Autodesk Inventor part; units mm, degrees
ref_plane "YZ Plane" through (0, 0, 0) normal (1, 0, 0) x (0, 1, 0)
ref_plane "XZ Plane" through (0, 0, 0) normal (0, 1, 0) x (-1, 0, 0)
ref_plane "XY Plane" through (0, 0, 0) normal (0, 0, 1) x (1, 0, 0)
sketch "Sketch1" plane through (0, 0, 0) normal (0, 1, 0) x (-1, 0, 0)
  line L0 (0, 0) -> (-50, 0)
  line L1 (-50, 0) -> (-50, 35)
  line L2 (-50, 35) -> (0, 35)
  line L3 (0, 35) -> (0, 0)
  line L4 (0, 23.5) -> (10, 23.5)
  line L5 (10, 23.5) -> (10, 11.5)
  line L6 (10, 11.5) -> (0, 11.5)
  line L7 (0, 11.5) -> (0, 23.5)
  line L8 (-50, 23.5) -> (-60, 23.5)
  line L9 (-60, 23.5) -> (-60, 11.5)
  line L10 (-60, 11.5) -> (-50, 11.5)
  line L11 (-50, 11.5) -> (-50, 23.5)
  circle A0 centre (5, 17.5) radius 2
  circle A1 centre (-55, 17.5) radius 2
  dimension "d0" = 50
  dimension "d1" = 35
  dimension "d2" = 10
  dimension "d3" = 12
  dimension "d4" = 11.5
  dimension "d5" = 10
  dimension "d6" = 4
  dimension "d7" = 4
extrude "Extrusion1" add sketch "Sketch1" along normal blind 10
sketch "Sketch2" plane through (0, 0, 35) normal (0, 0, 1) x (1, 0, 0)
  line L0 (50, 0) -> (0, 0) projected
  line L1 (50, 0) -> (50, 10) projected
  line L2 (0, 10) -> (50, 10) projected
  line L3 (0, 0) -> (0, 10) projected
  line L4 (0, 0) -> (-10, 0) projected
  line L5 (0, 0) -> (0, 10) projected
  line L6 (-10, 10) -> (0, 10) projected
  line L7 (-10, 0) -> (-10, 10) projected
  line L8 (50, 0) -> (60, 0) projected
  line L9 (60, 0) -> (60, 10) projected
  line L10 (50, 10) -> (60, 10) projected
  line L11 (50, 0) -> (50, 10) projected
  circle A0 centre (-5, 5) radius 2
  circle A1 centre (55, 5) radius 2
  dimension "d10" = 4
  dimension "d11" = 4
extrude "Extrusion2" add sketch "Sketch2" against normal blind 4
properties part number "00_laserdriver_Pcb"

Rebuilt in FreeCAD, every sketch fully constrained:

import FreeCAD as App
import Part
import Sketcher

doc = App.newDocument("Part")
params = doc.addObject("Spreadsheet::Sheet", "Params")
for row, (alias, value) in enumerate([
    ("sketch1_diameter", "4 mm"),
    ("sketch1_width", "50 mm"),
    ("sketch1_width2", "10 mm"),
    ("sketch1_height", "12 mm"),
    ("sketch1_height2", "11.5 mm"),
    ("pad1_length", "10 mm"),
    ("sketch2_diameter", "4 mm"),
    ("sketch2_width", "70 mm"),
    ("sketch2_height", "10 mm"),
    ("pad2_length", "4 mm"),
], start=1):
    params.set(f"A{row}", alias)
    params.set(f"B{row}", "=" + value)
    params.setAlias(f"B{row}", alias)

body = doc.addObject("PartDesign::Body", "Body")

# Sketch on XZ plane
sketch1 = doc.addObject("Sketcher::SketchObject", "Sketch")
body.addObject(sketch1)
sketch1.AttachmentSupport = (doc.XZ_Plane, [""])
sketch1.MapMode = "FlatFace"
sketch1.addGeometry(Part.LineSegment(App.Vector(50, 0, 0), App.Vector(0, 0, 0)), False)
sketch1.addGeometry(Part.LineSegment(App.Vector(0, 0, 0), App.Vector(0, 11.5, 0)), False)
sketch1.addGeometry(Part.LineSegment(App.Vector(0, 11.5, 0), App.Vector(-10, 11.5, 0)), False)
sketch1.addGeometry(Part.LineSegment(App.Vector(-10, 11.5, 0), App.Vector(-10, 23.5, 0)), False)
sketch1.addGeometry(Part.LineSegment(App.Vector(-10, 23.5, 0), App.Vector(0, 23.5, 0)), False)
sketch1.addGeometry(Part.LineSegment(App.Vector(0, 23.5, 0), App.Vector(0, 35, 0)), False)
sketch1.addGeometry(Part.LineSegment(App.Vector(0, 35, 0), App.Vector(50, 35, 0)), False)
sketch1.addGeometry(Part.LineSegment(App.Vector(50, 35, 0), App.Vector(50, 23.5, 0)), False)
sketch1.addGeometry(Part.LineSegment(App.Vector(50, 23.5, 0), App.Vector(60, 23.5, 0)), False)
sketch1.addGeometry(Part.LineSegment(App.Vector(60, 23.5, 0), App.Vector(60, 11.5, 0)), False)
sketch1.addGeometry(Part.LineSegment(App.Vector(60, 11.5, 0), App.Vector(50, 11.5, 0)), False)
sketch1.addGeometry(Part.LineSegment(App.Vector(50, 11.5, 0), App.Vector(50, 0, 0)), False)
sketch1.addGeometry(Part.Circle(App.Vector(55, 17.5, 0), App.Vector(0, 0, 1), 2), False)
sketch1.addGeometry(Part.Circle(App.Vector(-5, 17.5, 0), App.Vector(0, 0, 1), 2), False)
sketch1.addConstraint(Sketcher.Constraint("Coincident", 0, 2, 1, 1))
sketch1.addConstraint(Sketcher.Constraint("Coincident", 1, 2, 2, 1))
sketch1.addConstraint(Sketcher.Constraint("Coincident", 2, 2, 3, 1))
sketch1.addConstraint(Sketcher.Constraint("Coincident", 3, 2, 4, 1))
sketch1.addConstraint(Sketcher.Constraint("Coincident", 4, 2, 5, 1))
sketch1.addConstraint(Sketcher.Constraint("Coincident", 5, 2, 6, 1))
sketch1.addConstraint(Sketcher.Constraint("Coincident", 6, 2, 7, 1))
sketch1.addConstraint(Sketcher.Constraint("Coincident", 7, 2, 8, 1))
sketch1.addConstraint(Sketcher.Constraint("Coincident", 8, 2, 9, 1))
sketch1.addConstraint(Sketcher.Constraint("Coincident", 9, 2, 10, 1))
sketch1.addConstraint(Sketcher.Constraint("Coincident", 10, 2, 11, 1))
sketch1.addConstraint(Sketcher.Constraint("Coincident", 11, 2, 0, 1))
sketch1.addConstraint(Sketcher.Constraint("Horizontal", 0))
sketch1.addConstraint(Sketcher.Constraint("Vertical", 1))
sketch1.addConstraint(Sketcher.Constraint("Horizontal", 2))
sketch1.addConstraint(Sketcher.Constraint("Vertical", 3))
sketch1.addConstraint(Sketcher.Constraint("Horizontal", 4))
sketch1.addConstraint(Sketcher.Constraint("Vertical", 5))
sketch1.addConstraint(Sketcher.Constraint("Horizontal", 6))
sketch1.addConstraint(Sketcher.Constraint("Vertical", 7))
sketch1.addConstraint(Sketcher.Constraint("Horizontal", 8))
sketch1.addConstraint(Sketcher.Constraint("Vertical", 9))
sketch1.addConstraint(Sketcher.Constraint("Horizontal", 10))
sketch1.addConstraint(Sketcher.Constraint("Vertical", 11))
sketch1.addConstraint(Sketcher.Constraint("Coincident", 0, 2, -1, 1))
sketch1.addConstraint(Sketcher.Constraint("Equal", 12, 13))
sketch1.addConstraint(Sketcher.Constraint("PointOnObject", 4, 2, -2))
sketch1.addConstraint(Sketcher.Constraint("Horizontal", 12, 3, 13, 3))
sketch1.addConstraint(Sketcher.Constraint("Horizontal", 4, 2, 7, 2))
sketch1.addConstraint(Sketcher.Constraint("Horizontal", 2, 2, 9, 2))
sketch1.addConstraint(Sketcher.Constraint("Vertical", 7, 2, 10, 2))
sketch1.addConstraint(Sketcher.Constraint("Equal", 4, 8))
sketch1.addConstraint(Sketcher.Constraint("Equal", 1, 5))
sketch1.addConstraint(Sketcher.Constraint("Diameter", 12, 4.0))
sketch1.addConstraint(Sketcher.Constraint("DistanceX", 0, 2, 0, 1, 50.0))
sketch1.addConstraint(Sketcher.Constraint("DistanceX", 2, 2, 2, 1, 10.0))
sketch1.addConstraint(Sketcher.Constraint("DistanceY", 3, 1, 3, 2, 12.0))
sketch1.addConstraint(Sketcher.Constraint("DistanceY", 1, 1, 1, 2, 11.5))
sketch1.addConstraint(Sketcher.Constraint("DistanceX", -1, 1, 12, 3, 55.0))
sketch1.addConstraint(Sketcher.Constraint("DistanceX", 13, 3, -1, 1, 5.0))
sketch1.addConstraint(Sketcher.Constraint("DistanceY", 1, 2, 13, 3, 6.0))
sketch1.setExpression("Constraints[33]", "Params.sketch1_diameter")
sketch1.setExpression("Constraints[34]", "Params.sketch1_width")
sketch1.setExpression("Constraints[35]", "Params.sketch1_width2")
sketch1.setExpression("Constraints[36]", "Params.sketch1_height")
sketch1.setExpression("Constraints[37]", "Params.sketch1_height2")
pad1 = doc.addObject("PartDesign::Pad", "Pad")
body.addObject(pad1)
pad1.Profile = sketch1
pad1.setExpression("Length", "Params.pad1_length")
pad1.Reversed = True

# Sketch on XY plane
sketch2 = doc.addObject("Sketcher::SketchObject", "Sketch001")
body.addObject(sketch2)
sketch2.AttachmentSupport = (doc.XY_Plane, [""])
sketch2.MapMode = "FlatFace"
sketch2.AttachmentOffset = App.Placement(App.Vector(0, 0, 35), App.Rotation())
sketch2.addGeometry(Part.LineSegment(App.Vector(60, 0, 0), App.Vector(60, 10, 0)), False)
sketch2.addGeometry(Part.LineSegment(App.Vector(60, 10, 0), App.Vector(-10, 10, 0)), False)
sketch2.addGeometry(Part.LineSegment(App.Vector(-10, 10, 0), App.Vector(-10, 0, 0)), False)
sketch2.addGeometry(Part.LineSegment(App.Vector(-10, 0, 0), App.Vector(60, 0, 0)), False)
sketch2.addGeometry(Part.Circle(App.Vector(-5, 5, 0), App.Vector(0, 0, 1), 2), False)
sketch2.addGeometry(Part.Circle(App.Vector(55, 5, 0), App.Vector(0, 0, 1), 2), False)
sketch2.addConstraint(Sketcher.Constraint("Coincident", 0, 2, 1, 1))
sketch2.addConstraint(Sketcher.Constraint("Coincident", 1, 2, 2, 1))
sketch2.addConstraint(Sketcher.Constraint("Coincident", 2, 2, 3, 1))
sketch2.addConstraint(Sketcher.Constraint("Coincident", 3, 2, 0, 1))
sketch2.addConstraint(Sketcher.Constraint("Vertical", 0))
sketch2.addConstraint(Sketcher.Constraint("Horizontal", 1))
sketch2.addConstraint(Sketcher.Constraint("Vertical", 2))
sketch2.addConstraint(Sketcher.Constraint("Horizontal", 3))
sketch2.addConstraint(Sketcher.Constraint("Equal", 4, 5))
sketch2.addConstraint(Sketcher.Constraint("PointOnObject", 2, 2, -1))
sketch2.addConstraint(Sketcher.Constraint("Horizontal", 4, 3, 5, 3))
sketch2.addConstraint(Sketcher.Constraint("Diameter", 4, 4.0))
sketch2.addConstraint(Sketcher.Constraint("DistanceX", 1, 2, 1, 1, 70.0))
sketch2.addConstraint(Sketcher.Constraint("DistanceY", 0, 1, 0, 2, 10.0))
sketch2.addConstraint(Sketcher.Constraint("DistanceX", 4, 3, -1, 1, 5.0))
sketch2.addConstraint(Sketcher.Constraint("DistanceY", -1, 1, 4, 3, 5.0))
sketch2.addConstraint(Sketcher.Constraint("DistanceX", -1, 1, 5, 3, 55.0))
sketch2.addConstraint(Sketcher.Constraint("DistanceX", -1, 1, 0, 2, 60.0))
sketch2.setExpression("Constraints[11]", "Params.sketch2_diameter")
sketch2.setExpression("Constraints[12]", "Params.sketch2_width")
sketch2.setExpression("Constraints[13]", "Params.sketch2_height")
pad2 = doc.addObject("PartDesign::Pad", "Pad001")
body.addObject(pad2)
pad2.Profile = sketch2
pad2.setExpression("Length", "Params.pad2_length")
pad2.Reversed = True

doc.recompute()
